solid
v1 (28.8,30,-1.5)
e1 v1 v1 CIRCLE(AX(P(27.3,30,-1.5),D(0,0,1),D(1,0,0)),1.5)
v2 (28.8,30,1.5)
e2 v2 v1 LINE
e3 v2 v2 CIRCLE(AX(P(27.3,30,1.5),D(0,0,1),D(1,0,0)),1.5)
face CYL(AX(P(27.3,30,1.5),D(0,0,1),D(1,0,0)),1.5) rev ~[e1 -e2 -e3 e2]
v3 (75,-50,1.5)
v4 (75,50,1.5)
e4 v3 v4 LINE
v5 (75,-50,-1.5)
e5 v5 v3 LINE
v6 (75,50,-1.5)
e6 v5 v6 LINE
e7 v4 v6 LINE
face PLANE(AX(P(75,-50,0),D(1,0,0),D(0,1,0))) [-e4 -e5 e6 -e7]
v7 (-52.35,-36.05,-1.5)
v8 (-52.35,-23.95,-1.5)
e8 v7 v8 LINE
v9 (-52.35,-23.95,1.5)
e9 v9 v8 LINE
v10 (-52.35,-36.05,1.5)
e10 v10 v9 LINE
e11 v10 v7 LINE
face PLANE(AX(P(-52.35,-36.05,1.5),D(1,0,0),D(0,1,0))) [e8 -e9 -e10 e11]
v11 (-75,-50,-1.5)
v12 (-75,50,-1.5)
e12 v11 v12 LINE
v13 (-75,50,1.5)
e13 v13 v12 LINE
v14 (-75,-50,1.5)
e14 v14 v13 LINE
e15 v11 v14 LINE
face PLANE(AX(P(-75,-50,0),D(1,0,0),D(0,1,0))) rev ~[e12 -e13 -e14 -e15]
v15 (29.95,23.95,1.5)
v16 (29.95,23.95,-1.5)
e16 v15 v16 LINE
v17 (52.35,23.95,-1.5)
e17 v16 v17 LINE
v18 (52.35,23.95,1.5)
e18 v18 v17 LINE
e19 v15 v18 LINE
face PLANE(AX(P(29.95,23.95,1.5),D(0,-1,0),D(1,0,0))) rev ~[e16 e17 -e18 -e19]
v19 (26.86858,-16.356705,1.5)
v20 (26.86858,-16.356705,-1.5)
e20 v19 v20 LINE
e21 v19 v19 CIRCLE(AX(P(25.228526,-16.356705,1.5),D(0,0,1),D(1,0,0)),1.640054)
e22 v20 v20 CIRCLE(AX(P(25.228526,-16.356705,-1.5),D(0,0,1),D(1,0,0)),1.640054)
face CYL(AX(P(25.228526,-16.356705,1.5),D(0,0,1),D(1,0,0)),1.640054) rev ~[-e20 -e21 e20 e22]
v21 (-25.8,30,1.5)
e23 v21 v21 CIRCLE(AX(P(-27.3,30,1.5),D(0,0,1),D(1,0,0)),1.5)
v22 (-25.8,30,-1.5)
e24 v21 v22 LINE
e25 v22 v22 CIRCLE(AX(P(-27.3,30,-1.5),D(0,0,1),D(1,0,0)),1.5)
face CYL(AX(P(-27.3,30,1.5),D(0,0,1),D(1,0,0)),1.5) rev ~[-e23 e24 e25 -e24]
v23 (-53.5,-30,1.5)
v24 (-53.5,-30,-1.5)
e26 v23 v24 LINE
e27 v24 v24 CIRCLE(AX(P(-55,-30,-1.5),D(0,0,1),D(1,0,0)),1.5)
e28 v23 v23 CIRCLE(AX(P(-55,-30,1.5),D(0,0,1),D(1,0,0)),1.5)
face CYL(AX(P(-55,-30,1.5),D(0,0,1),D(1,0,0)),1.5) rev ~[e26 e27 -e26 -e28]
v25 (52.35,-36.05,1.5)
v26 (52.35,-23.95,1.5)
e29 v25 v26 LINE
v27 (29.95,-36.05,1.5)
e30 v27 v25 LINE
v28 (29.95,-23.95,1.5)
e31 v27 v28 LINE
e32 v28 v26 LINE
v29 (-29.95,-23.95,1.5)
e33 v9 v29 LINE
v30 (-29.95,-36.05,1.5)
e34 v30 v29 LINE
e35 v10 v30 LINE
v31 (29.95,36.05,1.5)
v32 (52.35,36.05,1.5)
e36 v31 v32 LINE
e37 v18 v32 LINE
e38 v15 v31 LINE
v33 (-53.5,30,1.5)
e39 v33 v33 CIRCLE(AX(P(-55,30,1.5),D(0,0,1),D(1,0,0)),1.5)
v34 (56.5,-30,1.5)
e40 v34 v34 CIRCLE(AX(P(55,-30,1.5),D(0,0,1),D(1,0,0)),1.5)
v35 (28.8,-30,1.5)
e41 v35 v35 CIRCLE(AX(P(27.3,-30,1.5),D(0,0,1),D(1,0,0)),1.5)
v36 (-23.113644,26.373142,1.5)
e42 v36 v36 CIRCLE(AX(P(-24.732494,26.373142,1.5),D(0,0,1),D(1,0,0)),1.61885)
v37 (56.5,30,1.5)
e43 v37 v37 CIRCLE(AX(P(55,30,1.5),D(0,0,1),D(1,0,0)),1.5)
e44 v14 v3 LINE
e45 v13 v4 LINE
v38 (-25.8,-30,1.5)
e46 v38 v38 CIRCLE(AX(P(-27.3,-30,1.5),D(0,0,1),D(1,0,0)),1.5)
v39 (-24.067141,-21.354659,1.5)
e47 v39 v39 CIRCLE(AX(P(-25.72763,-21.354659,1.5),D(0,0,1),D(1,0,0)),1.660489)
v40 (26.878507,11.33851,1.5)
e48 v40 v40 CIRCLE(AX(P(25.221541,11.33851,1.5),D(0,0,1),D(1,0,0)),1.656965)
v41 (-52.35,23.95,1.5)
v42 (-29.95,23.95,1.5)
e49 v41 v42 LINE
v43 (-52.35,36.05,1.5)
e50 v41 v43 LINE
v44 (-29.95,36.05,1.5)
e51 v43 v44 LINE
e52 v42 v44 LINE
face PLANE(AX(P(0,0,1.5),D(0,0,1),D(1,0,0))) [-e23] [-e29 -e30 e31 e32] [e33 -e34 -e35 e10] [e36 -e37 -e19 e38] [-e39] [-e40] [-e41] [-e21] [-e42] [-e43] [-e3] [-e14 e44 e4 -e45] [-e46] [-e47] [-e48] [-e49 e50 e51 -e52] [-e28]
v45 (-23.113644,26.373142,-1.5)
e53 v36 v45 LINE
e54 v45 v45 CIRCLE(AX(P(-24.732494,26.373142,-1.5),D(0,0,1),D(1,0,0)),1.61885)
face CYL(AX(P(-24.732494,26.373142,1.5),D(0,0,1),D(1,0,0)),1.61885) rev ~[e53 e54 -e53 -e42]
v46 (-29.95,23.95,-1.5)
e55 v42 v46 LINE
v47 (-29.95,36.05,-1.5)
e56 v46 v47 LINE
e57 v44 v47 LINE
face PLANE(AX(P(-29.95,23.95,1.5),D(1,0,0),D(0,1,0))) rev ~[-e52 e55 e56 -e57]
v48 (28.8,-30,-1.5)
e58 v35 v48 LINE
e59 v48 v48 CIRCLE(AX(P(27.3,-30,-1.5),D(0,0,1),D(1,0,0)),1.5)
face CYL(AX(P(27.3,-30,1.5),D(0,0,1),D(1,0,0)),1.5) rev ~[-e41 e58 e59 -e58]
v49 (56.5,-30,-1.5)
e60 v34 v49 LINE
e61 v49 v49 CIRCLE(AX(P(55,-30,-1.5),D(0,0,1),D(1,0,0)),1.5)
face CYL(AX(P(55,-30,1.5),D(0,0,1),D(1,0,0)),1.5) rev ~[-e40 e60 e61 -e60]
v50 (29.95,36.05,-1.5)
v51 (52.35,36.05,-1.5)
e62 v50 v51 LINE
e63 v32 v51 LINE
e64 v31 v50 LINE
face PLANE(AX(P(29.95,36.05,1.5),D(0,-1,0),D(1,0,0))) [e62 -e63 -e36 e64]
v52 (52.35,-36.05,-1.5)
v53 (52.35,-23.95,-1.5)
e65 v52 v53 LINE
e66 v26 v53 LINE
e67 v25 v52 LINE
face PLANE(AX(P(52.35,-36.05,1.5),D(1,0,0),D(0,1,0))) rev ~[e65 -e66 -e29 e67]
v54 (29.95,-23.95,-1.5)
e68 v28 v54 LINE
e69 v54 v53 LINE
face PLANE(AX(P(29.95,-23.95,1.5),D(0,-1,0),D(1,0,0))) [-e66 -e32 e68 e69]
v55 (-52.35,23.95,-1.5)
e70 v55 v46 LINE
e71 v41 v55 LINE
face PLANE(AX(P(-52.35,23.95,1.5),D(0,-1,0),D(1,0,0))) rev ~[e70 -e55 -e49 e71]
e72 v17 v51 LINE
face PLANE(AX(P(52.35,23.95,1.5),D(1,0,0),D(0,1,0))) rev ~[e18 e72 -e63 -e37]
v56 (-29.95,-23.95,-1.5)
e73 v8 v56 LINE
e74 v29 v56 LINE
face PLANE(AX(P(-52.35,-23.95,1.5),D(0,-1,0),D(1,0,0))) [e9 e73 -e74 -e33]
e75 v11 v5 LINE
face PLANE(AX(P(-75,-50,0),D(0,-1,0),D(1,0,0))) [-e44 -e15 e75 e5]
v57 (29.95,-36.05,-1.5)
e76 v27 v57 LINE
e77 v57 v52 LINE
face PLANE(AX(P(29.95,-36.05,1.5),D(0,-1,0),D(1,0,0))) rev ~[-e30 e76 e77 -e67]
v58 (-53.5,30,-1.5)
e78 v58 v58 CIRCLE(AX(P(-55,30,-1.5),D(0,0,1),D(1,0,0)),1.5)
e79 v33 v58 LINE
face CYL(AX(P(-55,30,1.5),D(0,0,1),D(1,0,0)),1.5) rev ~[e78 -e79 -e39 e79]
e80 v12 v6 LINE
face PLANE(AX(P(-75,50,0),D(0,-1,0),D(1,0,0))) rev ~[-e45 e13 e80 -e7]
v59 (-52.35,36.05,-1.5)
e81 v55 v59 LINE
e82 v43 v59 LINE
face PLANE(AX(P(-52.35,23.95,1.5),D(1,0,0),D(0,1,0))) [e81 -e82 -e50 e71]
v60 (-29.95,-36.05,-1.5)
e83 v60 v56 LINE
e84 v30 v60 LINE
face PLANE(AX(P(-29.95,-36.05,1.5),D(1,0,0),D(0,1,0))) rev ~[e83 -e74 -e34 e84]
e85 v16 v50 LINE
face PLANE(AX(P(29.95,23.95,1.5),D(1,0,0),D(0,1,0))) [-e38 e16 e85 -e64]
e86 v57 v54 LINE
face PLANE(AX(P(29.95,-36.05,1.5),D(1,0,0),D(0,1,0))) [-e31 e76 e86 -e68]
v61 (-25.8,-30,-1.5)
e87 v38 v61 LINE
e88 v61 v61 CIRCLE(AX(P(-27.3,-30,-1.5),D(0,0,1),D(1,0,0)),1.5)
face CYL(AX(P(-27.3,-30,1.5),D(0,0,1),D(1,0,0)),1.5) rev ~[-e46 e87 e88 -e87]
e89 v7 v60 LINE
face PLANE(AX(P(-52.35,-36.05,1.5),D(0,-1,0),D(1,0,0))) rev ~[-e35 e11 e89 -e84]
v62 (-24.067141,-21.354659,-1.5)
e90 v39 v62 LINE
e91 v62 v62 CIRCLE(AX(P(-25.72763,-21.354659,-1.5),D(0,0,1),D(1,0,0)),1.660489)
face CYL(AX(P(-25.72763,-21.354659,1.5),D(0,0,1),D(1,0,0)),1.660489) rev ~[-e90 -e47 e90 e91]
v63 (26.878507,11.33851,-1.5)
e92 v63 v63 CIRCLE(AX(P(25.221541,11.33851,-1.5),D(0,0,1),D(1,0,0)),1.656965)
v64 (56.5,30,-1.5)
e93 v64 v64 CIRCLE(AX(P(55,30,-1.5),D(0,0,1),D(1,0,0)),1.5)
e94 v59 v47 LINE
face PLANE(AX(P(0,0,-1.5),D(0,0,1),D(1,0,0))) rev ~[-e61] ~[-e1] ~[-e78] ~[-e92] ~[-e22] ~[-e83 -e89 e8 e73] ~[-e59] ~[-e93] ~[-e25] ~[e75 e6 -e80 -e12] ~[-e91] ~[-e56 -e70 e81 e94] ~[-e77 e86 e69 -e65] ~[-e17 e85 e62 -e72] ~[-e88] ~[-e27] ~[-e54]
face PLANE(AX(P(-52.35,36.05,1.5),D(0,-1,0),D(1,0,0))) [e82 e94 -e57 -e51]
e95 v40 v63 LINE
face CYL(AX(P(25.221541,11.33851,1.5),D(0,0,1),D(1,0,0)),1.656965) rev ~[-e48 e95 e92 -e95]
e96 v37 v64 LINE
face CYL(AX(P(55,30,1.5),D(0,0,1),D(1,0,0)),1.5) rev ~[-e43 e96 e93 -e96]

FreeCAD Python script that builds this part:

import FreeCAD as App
import Part
import Sketcher
from FreeCAD import Vector
Q = App.Units.Quantity


def add_polygon(sketch, points):
    """Adds a closed chain of lines whose ends are joined by coincident constraints."""
    first, n = sketch.GeometryCount, len(points)
    for a, b in zip(points, points[1:] + points[:1]):
        sketch.addGeometry(Part.LineSegment(App.Vector(*a, 0), App.Vector(*b, 0)), False)
    for i in range(n):
        sketch.addConstraint(Sketcher.Constraint("Coincident", first + i, 2, first + (i + 1) % n, 1))

doc = App.newDocument("Part")
body = doc.addObject("PartDesign::Body", "Body")

# Sketch on XY plane
sketch1 = body.newObject("Sketcher::SketchObject", "Sketch")
sketch1.AttachmentSupport = (doc.getObject("XY_Plane"), [""])
sketch1.MapMode = "FlatFace"
add_polygon(sketch1, [(-75, 50), (-75, -50), (75, -50), (75, 50)])  # lines 0-3
sketch1.addConstraint([
    Sketcher.Constraint("Vertical", 0),
    Sketcher.Constraint("Horizontal", 1),
    Sketcher.Constraint("Vertical", 2),
    Sketcher.Constraint("Horizontal", 3),
    Sketcher.Constraint("Symmetric", 0, 2, 2, 2, -1, 1),
    Sketcher.Constraint("DistanceX", 1, 1, 1, 2, Q("150 mm")),
    Sketcher.Constraint("DistanceY", 0, 2, 0, 1, Q("100 mm")),
])
pad1 = body.newObject("PartDesign::Pad", "Pad")
pad1.Profile = sketch1
pad1.Length = 3
pad1.Midplane = True

# Sketch on XY plane
sketch2 = body.newObject("Sketcher::SketchObject", "Sketch001")
sketch2.AttachmentSupport = (doc.getObject("XY_Plane"), [""])
sketch2.MapMode = "FlatFace"
sketch2.AttachmentOffset = App.Placement(Vector(0, 0, 1.5), App.Rotation())
sketch2.addGeometry(Part.Circle(Vector(-55, -30, 0), Vector(0, 0, 1), 1.5), False)  # 0
sketch2.addGeometry(Part.Circle(Vector(-27.3, -30, 0), Vector(0, 0, 1), 1.5), False)  # 1
add_polygon(sketch2, [(-52.35, -23.95), (-52.35, -36.05), (-29.95, -36.05), (-29.95, -23.95)])  # lines 2-5
sketch2.addGeometry(Part.Circle(Vector(27.3, -30, 0), Vector(0, 0, 1), 1.5), False)  # 6
sketch2.addGeometry(Part.Circle(Vector(55, -30, 0), Vector(0, 0, 1), 1.5), False)  # 7
add_polygon(sketch2, [(29.95, -23.95), (29.95, -36.05), (52.35, -36.05), (52.35, -23.95)])  # lines 8-11
sketch2.addGeometry(Part.Circle(Vector(27.3, 30, 0), Vector(0, 0, 1), 1.5), False)  # 12
sketch2.addGeometry(Part.Circle(Vector(55, 30, 0), Vector(0, 0, 1), 1.5), False)  # 13
add_polygon(sketch2, [(29.95, 36.05), (29.95, 23.95), (52.35, 23.95), (52.35, 36.05)])  # lines 14-17
sketch2.addGeometry(Part.Circle(Vector(-55, 30, 0), Vector(0, 0, 1), 1.5), False)  # 18
sketch2.addGeometry(Part.Circle(Vector(-27.3, 30, 0), Vector(0, 0, 1), 1.5), False)  # 19
add_polygon(sketch2, [(-52.35, 36.05), (-52.35, 23.95), (-29.95, 23.95), (-29.95, 36.05)])  # lines 20-23
sketch2.addConstraint([
    Sketcher.Constraint("Vertical", 2),
    Sketcher.Constraint("Horizontal", 3),
    Sketcher.Constraint("Vertical", 4),
    Sketcher.Constraint("Horizontal", 5),
    Sketcher.Constraint("Vertical", 8),
    Sketcher.Constraint("Horizontal", 9),
    Sketcher.Constraint("Vertical", 10),
    Sketcher.Constraint("Horizontal", 11),
    Sketcher.Constraint("Vertical", 14),
    Sketcher.Constraint("Horizontal", 15),
    Sketcher.Constraint("Vertical", 16),
    Sketcher.Constraint("Horizontal", 17),
    Sketcher.Constraint("Vertical", 20),
    Sketcher.Constraint("Horizontal", 21),
    Sketcher.Constraint("Vertical", 22),
    Sketcher.Constraint("Horizontal", 23),
    Sketcher.Constraint("Equal", 0, 1),
    Sketcher.Constraint("Equal", 1, 6),
    Sketcher.Constraint("Equal", 6, 7),
    Sketcher.Constraint("Equal", 7, 12),
    Sketcher.Constraint("Equal", 12, 13),
    Sketcher.Constraint("Equal", 13, 18),
    Sketcher.Constraint("Equal", 18, 19),
    Sketcher.Constraint("Symmetric", 1, 3, 12, 3, -1, 1),
    Sketcher.Constraint("Symmetric", 0, 3, 13, 3, -1, 1),
    Sketcher.Constraint("Symmetric", 7, 3, 18, 3, -1, 1),
    Sketcher.Constraint("Symmetric", 6, 3, 19, 3, -1, 1),
    Sketcher.Constraint("Symmetric", 4, 2, 14, 2, -1, 1),
    Sketcher.Constraint("Symmetric", 2, 2, 16, 2, -1, 1),
    Sketcher.Constraint("Symmetric", 10, 2, 20, 2, -1, 1),
    Sketcher.Constraint("Symmetric", 8, 2, 22, 2, -1, 1),
    Sketcher.Constraint("Symmetric", 1, 3, 6, 3, -2),
    Sketcher.Constraint("Symmetric", 0, 3, 7, 3, -2),
    Sketcher.Constraint("Symmetric", 3, 2, 8, 2, -2),
    Sketcher.Constraint("Symmetric", 5, 2, 10, 2, -2),
    Sketcher.Constraint("Horizontal", 0, 3, 1, 3),
    Sketcher.Constraint("Diameter", 0, Q("3 mm")),
    Sketcher.Constraint("DistanceX", 3, 1, 3, 2, Q("22.4 mm")),
    Sketcher.Constraint("DistanceY", 2, 2, 2, 1, Q("12.1 mm")),
    Sketcher.Constraint("DistanceX", 0, 3, -1, 1, Q("55 mm")),
    Sketcher.Constraint("DistanceY", 0, 3, -1, 1, Q("30 mm")),
    Sketcher.Constraint("DistanceY", 10, 2, 16, 2, Q("60 mm")),
    Sketcher.Constraint("DistanceX", 1, 3, -1, 1, Q("27.3 mm")),
    Sketcher.Constraint("DistanceX", 3, 2, 8, 2, Q("59.9 mm")),
])
pocket1 = body.newObject("PartDesign::Pocket", "Pocket")
pocket1.Profile = sketch2
pocket1.Type = "ThroughAll"

# Sketch on XY plane
sketch3 = body.newObject("Sketcher::SketchObject", "Sketch002")
sketch3.AttachmentSupport = (doc.getObject("XY_Plane"), [""])
sketch3.MapMode = "FlatFace"
sketch3.AttachmentOffset = App.Placement(Vector(0, 0, 1.5), App.Rotation())
sketch3.addGeometry([
    Part.Circle(Vector(-24.732494, 26.373142, 0), Vector(0, 0, 1), 1.61885),
    Part.Circle(Vector(25.221541, 11.33851, 0), Vector(0, 0, 1), 1.656965),
    Part.Circle(Vector(25.228526, -16.356705, 0), Vector(0, 0, 1), 1.640054),
    Part.Circle(Vector(-25.72763, -21.354659, 0), Vector(0, 0, 1), 1.660489),
], False)
sketch3.addConstraint([
    Sketcher.Constraint("Diameter", 0, Q("3.2377 mm")),
    Sketcher.Constraint("Diameter", 1, Q("3.313931 mm")),
    Sketcher.Constraint("Diameter", 2, Q("3.280109 mm")),
    Sketcher.Constraint("Diameter", 3, Q("3.320977 mm")),
    Sketcher.Constraint("DistanceY", 3, 3, 0, 3, Q("47.727801 mm")),
    Sketcher.Constraint("DistanceX", -1, 1, 1, 3, Q("25.221541 mm")),
    Sketcher.Constraint("DistanceY", -1, 1, 1, 3, Q("11.33851 mm")),
    Sketcher.Constraint("DistanceX", 3, 3, -1, 1, Q("25.72763 mm")),
    Sketcher.Constraint("DistanceY", 3, 3, -1, 1, Q("21.354659 mm")),
    Sketcher.Constraint("DistanceX", 0, 3, 2, 3, Q("49.96102 mm")),
    Sketcher.Constraint("DistanceX", 0, 3, -1, 1, Q("24.732494 mm")),
    Sketcher.Constraint("DistanceY", 2, 3, -1, 1, Q("16.356705 mm")),
])
pocket2 = body.newObject("PartDesign::Pocket", "Pocket001")
pocket2.Profile = sketch3
pocket2.Type = "ThroughAll"

doc.recompute()
